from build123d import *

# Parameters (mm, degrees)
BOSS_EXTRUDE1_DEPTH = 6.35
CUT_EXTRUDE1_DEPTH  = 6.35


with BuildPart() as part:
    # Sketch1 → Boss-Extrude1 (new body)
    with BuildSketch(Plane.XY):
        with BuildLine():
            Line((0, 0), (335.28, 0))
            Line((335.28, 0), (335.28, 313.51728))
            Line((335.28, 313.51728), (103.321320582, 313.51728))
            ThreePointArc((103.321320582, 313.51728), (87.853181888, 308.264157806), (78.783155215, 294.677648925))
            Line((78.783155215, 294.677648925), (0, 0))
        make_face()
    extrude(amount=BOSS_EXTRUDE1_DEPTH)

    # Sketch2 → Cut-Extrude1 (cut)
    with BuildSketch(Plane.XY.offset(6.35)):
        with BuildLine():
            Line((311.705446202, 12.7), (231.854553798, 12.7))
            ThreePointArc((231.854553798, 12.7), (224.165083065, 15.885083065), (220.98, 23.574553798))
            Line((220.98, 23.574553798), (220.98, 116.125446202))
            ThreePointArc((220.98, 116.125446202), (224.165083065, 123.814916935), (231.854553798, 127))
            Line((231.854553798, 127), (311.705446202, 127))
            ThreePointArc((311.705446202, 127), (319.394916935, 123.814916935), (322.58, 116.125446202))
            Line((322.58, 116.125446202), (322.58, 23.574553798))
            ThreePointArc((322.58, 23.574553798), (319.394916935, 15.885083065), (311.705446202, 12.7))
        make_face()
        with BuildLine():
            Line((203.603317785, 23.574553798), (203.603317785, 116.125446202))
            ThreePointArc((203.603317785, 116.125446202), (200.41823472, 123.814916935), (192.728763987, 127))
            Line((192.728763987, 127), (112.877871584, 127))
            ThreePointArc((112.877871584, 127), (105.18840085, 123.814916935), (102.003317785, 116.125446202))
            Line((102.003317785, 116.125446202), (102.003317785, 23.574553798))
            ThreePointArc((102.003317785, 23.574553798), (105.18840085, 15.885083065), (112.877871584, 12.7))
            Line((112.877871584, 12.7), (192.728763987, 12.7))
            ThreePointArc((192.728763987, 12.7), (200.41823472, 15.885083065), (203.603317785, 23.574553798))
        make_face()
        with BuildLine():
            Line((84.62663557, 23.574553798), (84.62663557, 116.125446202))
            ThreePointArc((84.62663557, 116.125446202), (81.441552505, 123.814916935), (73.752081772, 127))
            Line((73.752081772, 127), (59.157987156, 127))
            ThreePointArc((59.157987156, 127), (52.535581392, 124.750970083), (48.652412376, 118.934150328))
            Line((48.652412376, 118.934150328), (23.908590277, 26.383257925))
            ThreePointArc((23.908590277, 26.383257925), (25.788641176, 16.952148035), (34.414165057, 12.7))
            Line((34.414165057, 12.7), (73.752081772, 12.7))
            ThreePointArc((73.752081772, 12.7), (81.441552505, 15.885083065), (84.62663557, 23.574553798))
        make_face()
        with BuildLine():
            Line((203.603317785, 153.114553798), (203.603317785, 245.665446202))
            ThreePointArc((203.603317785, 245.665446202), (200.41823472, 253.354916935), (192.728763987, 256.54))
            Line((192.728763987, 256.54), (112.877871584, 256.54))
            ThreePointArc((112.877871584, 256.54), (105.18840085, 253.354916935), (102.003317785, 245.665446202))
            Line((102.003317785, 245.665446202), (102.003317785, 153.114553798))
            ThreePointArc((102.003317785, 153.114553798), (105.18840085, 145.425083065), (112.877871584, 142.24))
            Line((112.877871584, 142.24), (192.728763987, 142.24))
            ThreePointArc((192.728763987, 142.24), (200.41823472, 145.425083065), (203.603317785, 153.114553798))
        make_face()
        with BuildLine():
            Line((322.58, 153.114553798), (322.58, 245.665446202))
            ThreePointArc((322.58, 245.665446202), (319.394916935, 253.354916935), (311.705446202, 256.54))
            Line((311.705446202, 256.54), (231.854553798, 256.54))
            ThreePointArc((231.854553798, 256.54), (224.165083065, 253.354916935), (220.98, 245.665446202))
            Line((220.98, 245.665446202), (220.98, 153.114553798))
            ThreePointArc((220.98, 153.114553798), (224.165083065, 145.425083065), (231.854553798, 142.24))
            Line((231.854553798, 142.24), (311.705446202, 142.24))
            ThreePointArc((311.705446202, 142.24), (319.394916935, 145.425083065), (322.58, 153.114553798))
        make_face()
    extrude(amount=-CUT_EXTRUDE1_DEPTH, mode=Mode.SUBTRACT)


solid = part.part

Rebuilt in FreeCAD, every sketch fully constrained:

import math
import FreeCAD as App
import Part
import Sketcher
Q = App.Units.Quantity

doc = App.newDocument("Part")
body = doc.addObject("PartDesign::Body", "Body")

# Sketch on XY plane
sketch1 = body.newObject("Sketcher::SketchObject", "Sketch")
sketch1.AttachmentSupport = (doc.getObject("XY_Plane"), [""])
sketch1.MapMode = "FlatFace"
sketch1.addGeometry(Part.LineSegment(App.Vector(0, 0, 0), App.Vector(335, 0, 0)), False)
sketch1.addGeometry(Part.LineSegment(App.Vector(335, 0, 0), App.Vector(335, 314, 0)), False)
sketch1.addGeometry(Part.LineSegment(App.Vector(335, 314, 0), App.Vector(103, 314, 0)), False)
sketch1.addGeometry(Part.ArcOfCircle(Part.Circle(App.Vector(103, 288, 0), App.Vector(0, 0, 1), 25), math.radians(90), math.radians(165)), False)
sketch1.addGeometry(Part.LineSegment(App.Vector(79, 295, 0), App.Vector(0, 0, 0)), False)
sketch1.addConstraint(Sketcher.Constraint("Coincident", 0, 2, 1, 1))
sketch1.addConstraint(Sketcher.Constraint("Coincident", 1, 2, 2, 1))
sketch1.addConstraint(Sketcher.Constraint("Tangent", 2, 2, 3, 1))
sketch1.addConstraint(Sketcher.Constraint("Tangent", 3, 2, 4, 1))
sketch1.addConstraint(Sketcher.Constraint("Coincident", 4, 2, 0, 1))
sketch1.addConstraint(Sketcher.Constraint("Horizontal", 0))
sketch1.addConstraint(Sketcher.Constraint("Vertical", 1))
sketch1.addConstraint(Sketcher.Constraint("Horizontal", 2))
sketch1.addConstraint(Sketcher.Constraint("Coincident", 4, 2, -1, 1))
sketch1.addConstraint(Sketcher.Constraint("Radius", 3, Q("1 in")))
sketch1.addConstraint(Sketcher.Constraint("DistanceX", 0, 1, 0, 2, Q("13.2 in")))
sketch1.addConstraint(Sketcher.Constraint("DistanceY", 1, 1, 1, 2, Q("12.3432 in")))
sketch1.addConstraint(Sketcher.Constraint("DistanceX", 2, 2, 2, 1, 231.958679))
pad1 = body.newObject("PartDesign::Pad", "Pad")
pad1.Profile = sketch1
pad1.Length = Q("0.25 in")

# Sketch on XY plane
sketch2 = body.newObject("Sketcher::SketchObject", "Sketch001")
sketch2.AttachmentSupport = (doc.getObject("XY_Plane"), [""])
sketch2.MapMode = "FlatFace"
sketch2.AttachmentOffset = App.Placement(App.Vector(0, 0, 0.25 * 25.4), App.Rotation())
sketch2.addGeometry(Part.LineSegment(App.Vector(232, 13, 0), App.Vector(312, 13, 0)), False)
sketch2.addGeometry(Part.ArcOfCircle(Part.Circle(App.Vector(312, 24, 0), App.Vector(0, 0, 1), 11), math.radians(-90), math.radians(0)), False)
sketch2.addGeometry(Part.LineSegment(App.Vector(323, 24, 0), App.Vector(323, 116, 0)), False)
sketch2.addGeometry(Part.ArcOfCircle(Part.Circle(App.Vector(312, 116, 0), App.Vector(0, 0, 1), 11), math.radians(0), math.radians(90)), False)
sketch2.addGeometry(Part.LineSegment(App.Vector(312, 127, 0), App.Vector(232, 127, 0)), False)
sketch2.addGeometry(Part.ArcOfCircle(Part.Circle(App.Vector(232, 116, 0), App.Vector(0, 0, 1), 11), math.radians(90), math.radians(180)), False)
sketch2.addGeometry(Part.LineSegment(App.Vector(221, 116, 0), App.Vector(221, 24, 0)), False)
sketch2.addGeometry(Part.ArcOfCircle(Part.Circle(App.Vector(232, 24, 0), App.Vector(0, 0, 1), 11), math.radians(180), math.radians(270)), False)
sketch2.addGeometry(Part.LineSegment(App.Vector(204, 24, 0), App.Vector(204, 116, 0)), False)
sketch2.addGeometry(Part.ArcOfCircle(Part.Circle(App.Vector(193, 116, 0), App.Vector(0, 0, 1), 11), math.radians(0), math.radians(90)), False)
sketch2.addGeometry(Part.LineSegment(App.Vector(193, 127, 0), App.Vector(113, 127, 0)), False)
sketch2.addGeometry(Part.ArcOfCircle(Part.Circle(App.Vector(113, 116, 0), App.Vector(0, 0, 1), 11), math.radians(90), math.radians(180)), False)
sketch2.addGeometry(Part.LineSegment(App.Vector(102, 116, 0), App.Vector(102, 24, 0)), False)
sketch2.addGeometry(Part.ArcOfCircle(Part.Circle(App.Vector(113, 24, 0), App.Vector(0, 0, 1), 11), math.radians(180), math.radians(270)), False)
sketch2.addGeometry(Part.LineSegment(App.Vector(113, 13, 0), App.Vector(193, 13, 0)), False)
sketch2.addGeometry(Part.ArcOfCircle(Part.Circle(App.Vector(193, 24, 0), App.Vector(0, 0, 1), 11), math.radians(-90), math.radians(0)), False)
sketch2.addGeometry(Part.LineSegment(App.Vector(85, 24, 0), App.Vector(85, 116, 0)), False)
sketch2.addGeometry(Part.ArcOfCircle(Part.Circle(App.Vector(74, 116, 0), App.Vector(0, 0, 1), 11), math.radians(0), math.radians(90)), False)
sketch2.addGeometry(Part.LineSegment(App.Vector(74, 127, 0), App.Vector(59, 127, 0)), False)
sketch2.addGeometry(Part.ArcOfCircle(Part.Circle(App.Vector(59, 116, 0), App.Vector(0, 0, 1), 11), math.radians(90), math.radians(165)), False)
sketch2.addGeometry(Part.LineSegment(App.Vector(49, 119, 0), App.Vector(24, 26, 0)), False)
sketch2.addGeometry(Part.ArcOfCircle(Part.Circle(App.Vector(34, 24, 0), App.Vector(0, 0, 1), 11), math.radians(165), math.radians(270)), False)
sketch2.addGeometry(Part.LineSegment(App.Vector(34, 13, 0), App.Vector(74, 13, 0)), False)
sketch2.addGeometry(Part.ArcOfCircle(Part.Circle(App.Vector(74, 24, 0), App.Vector(0, 0, 1), 11), math.radians(-90), math.radians(0)), False)
sketch2.addGeometry(Part.LineSegment(App.Vector(204, 153, 0), App.Vector(204, 246, 0)), False)
sketch2.addGeometry(Part.ArcOfCircle(Part.Circle(App.Vector(193, 246, 0), App.Vector(0, 0, 1), 11), math.radians(0), math.radians(90)), False)
sketch2.addGeometry(Part.LineSegment(App.Vector(193, 257, 0), App.Vector(113, 257, 0)), False)
sketch2.addGeometry(Part.ArcOfCircle(Part.Circle(App.Vector(113, 246, 0), App.Vector(0, 0, 1), 11), math.radians(90), math.radians(180)), False)
sketch2.addGeometry(Part.LineSegment(App.Vector(102, 246, 0), App.Vector(102, 153, 0)), False)
sketch2.addGeometry(Part.ArcOfCircle(Part.Circle(App.Vector(113, 153, 0), App.Vector(0, 0, 1), 11), math.radians(180), math.radians(270)), False)
sketch2.addGeometry(Part.LineSegment(App.Vector(113, 142, 0), App.Vector(193, 142, 0)), False)
sketch2.addGeometry(Part.ArcOfCircle(Part.Circle(App.Vector(193, 153, 0), App.Vector(0, 0, 1), 11), math.radians(-90), math.radians(0)), False)
sketch2.addGeometry(Part.LineSegment(App.Vector(323, 153, 0), App.Vector(323, 246, 0)), False)
sketch2.addGeometry(Part.ArcOfCircle(Part.Circle(App.Vector(312, 246, 0), App.Vector(0, 0, 1), 11), math.radians(0), math.radians(90)), False)
sketch2.addGeometry(Part.LineSegment(App.Vector(312, 257, 0), App.Vector(232, 257, 0)), False)
sketch2.addGeometry(Part.ArcOfCircle(Part.Circle(App.Vector(232, 246, 0), App.Vector(0, 0, 1), 11), math.radians(90), math.radians(180)), False)
sketch2.addGeometry(Part.LineSegment(App.Vector(221, 246, 0), App.Vector(221, 153, 0)), False)
sketch2.addGeometry(Part.ArcOfCircle(Part.Circle(App.Vector(232, 153, 0), App.Vector(0, 0, 1), 11), math.radians(180), math.radians(270)), False)
sketch2.addGeometry(Part.LineSegment(App.Vector(232, 142, 0), App.Vector(312, 142, 0)), False)
sketch2.addGeometry(Part.ArcOfCircle(Part.Circle(App.Vector(312, 153, 0), App.Vector(0, 0, 1), 11), math.radians(-90), math.radians(0)), False)
sketch2.addConstraint(Sketcher.Constraint("Tangent", 0, 2, 1, 1))
sketch2.addConstraint(Sketcher.Constraint("Tangent", 1, 2, 2, 1))
sketch2.addConstraint(Sketcher.Constraint("Tangent", 2, 2, 3, 1))
sketch2.addConstraint(Sketcher.Constraint("Tangent", 3, 2, 4, 1))
sketch2.addConstraint(Sketcher.Constraint("Tangent", 4, 2, 5, 1))
sketch2.addConstraint(Sketcher.Constraint("Tangent", 5, 2, 6, 1))
sketch2.addConstraint(Sketcher.Constraint("Tangent", 6, 2, 7, 1))
sketch2.addConstraint(Sketcher.Constraint("Tangent", 7, 2, 0, 1))
sketch2.addConstraint(Sketcher.Constraint("Tangent", 8, 2, 9, 1))
sketch2.addConstraint(Sketcher.Constraint("Tangent", 9, 2, 10, 1))
sketch2.addConstraint(Sketcher.Constraint("Tangent", 10, 2, 11, 1))
sketch2.addConstraint(Sketcher.Constraint("Tangent", 11, 2, 12, 1))
sketch2.addConstraint(Sketcher.Constraint("Tangent", 12, 2, 13, 1))
sketch2.addConstraint(Sketcher.Constraint("Tangent", 13, 2, 14, 1))
sketch2.addConstraint(Sketcher.Constraint("Tangent", 14, 2, 15, 1))
sketch2.addConstraint(Sketcher.Constraint("Tangent", 15, 2, 8, 1))
sketch2.addConstraint(Sketcher.Constraint("Tangent", 16, 2, 17, 1))
sketch2.addConstraint(Sketcher.Constraint("Tangent", 17, 2, 18, 1))
sketch2.addConstraint(Sketcher.Constraint("Tangent", 18, 2, 19, 1))
sketch2.addConstraint(Sketcher.Constraint("Tangent", 19, 2, 20, 1))
sketch2.addConstraint(Sketcher.Constraint("Tangent", 20, 2, 21, 1))
sketch2.addConstraint(Sketcher.Constraint("Tangent", 21, 2, 22, 1))
sketch2.addConstraint(Sketcher.Constraint("Tangent", 22, 2, 23, 1))
sketch2.addConstraint(Sketcher.Constraint("Tangent", 23, 2, 16, 1))
sketch2.addConstraint(Sketcher.Constraint("Tangent", 24, 2, 25, 1))
sketch2.addConstraint(Sketcher.Constraint("Tangent", 25, 2, 26, 1))
sketch2.addConstraint(Sketcher.Constraint("Tangent", 26, 2, 27, 1))
sketch2.addConstraint(Sketcher.Constraint("Tangent", 27, 2, 28, 1))
sketch2.addConstraint(Sketcher.Constraint("Tangent", 28, 2, 29, 1))
sketch2.addConstraint(Sketcher.Constraint("Tangent", 29, 2, 30, 1))
sketch2.addConstraint(Sketcher.Constraint("Tangent", 30, 2, 31, 1))
sketch2.addConstraint(Sketcher.Constraint("Tangent", 31, 2, 24, 1))
sketch2.addConstraint(Sketcher.Constraint("Tangent", 32, 2, 33, 1))
sketch2.addConstraint(Sketcher.Constraint("Tangent", 33, 2, 34, 1))
sketch2.addConstraint(Sketcher.Constraint("Tangent", 34, 2, 35, 1))
sketch2.addConstraint(Sketcher.Constraint("Tangent", 35, 2, 36, 1))
sketch2.addConstraint(Sketcher.Constraint("Tangent", 36, 2, 37, 1))
sketch2.addConstraint(Sketcher.Constraint("Tangent", 37, 2, 38, 1))
sketch2.addConstraint(Sketcher.Constraint("Tangent", 38, 2, 39, 1))
sketch2.addConstraint(Sketcher.Constraint("Tangent", 39, 2, 32, 1))
sketch2.addConstraint(Sketcher.Constraint("Horizontal", 0))
sketch2.addConstraint(Sketcher.Constraint("Vertical", 2))
sketch2.addConstraint(Sketcher.Constraint("Horizontal", 4))
sketch2.addConstraint(Sketcher.Constraint("Vertical", 6))
sketch2.addConstraint(Sketcher.Constraint("Vertical", 8))
sketch2.addConstraint(Sketcher.Constraint("Horizontal", 10))
sketch2.addConstraint(Sketcher.Constraint("Vertical", 12))
sketch2.addConstraint(Sketcher.Constraint("Horizontal", 14))
sketch2.addConstraint(Sketcher.Constraint("Vertical", 16))
sketch2.addConstraint(Sketcher.Constraint("Horizontal", 18))
sketch2.addConstraint(Sketcher.Constraint("Horizontal", 22))
sketch2.addConstraint(Sketcher.Constraint("Vertical", 24))
sketch2.addConstraint(Sketcher.Constraint("Horizontal", 26))
sketch2.addConstraint(Sketcher.Constraint("Vertical", 28))
sketch2.addConstraint(Sketcher.Constraint("Horizontal", 30))
sketch2.addConstraint(Sketcher.Constraint("Vertical", 32))
sketch2.addConstraint(Sketcher.Constraint("Horizontal", 34))
sketch2.addConstraint(Sketcher.Constraint("Vertical", 36))
sketch2.addConstraint(Sketcher.Constraint("Horizontal", 38))
sketch2.addConstraint(Sketcher.Constraint("Equal", 1, 3))
sketch2.addConstraint(Sketcher.Constraint("Equal", 3, 5))
sketch2.addConstraint(Sketcher.Constraint("Equal", 5, 7))
sketch2.addConstraint(Sketcher.Constraint("Equal", 7, 9))
sketch2.addConstraint(Sketcher.Constraint("Equal", 9, 11))
sketch2.addConstraint(Sketcher.Constraint("Equal", 11, 13))
sketch2.addConstraint(Sketcher.Constraint("Equal", 13, 15))
sketch2.addConstraint(Sketcher.Constraint("Equal", 15, 17))
sketch2.addConstraint(Sketcher.Constraint("Equal", 17, 19))
sketch2.addConstraint(Sketcher.Constraint("Equal", 19, 21))
sketch2.addConstraint(Sketcher.Constraint("Equal", 21, 23))
sketch2.addConstraint(Sketcher.Constraint("Equal", 23, 25))
sketch2.addConstraint(Sketcher.Constraint("Equal", 25, 27))
sketch2.addConstraint(Sketcher.Constraint("Equal", 27, 29))
sketch2.addConstraint(Sketcher.Constraint("Equal", 29, 31))
sketch2.addConstraint(Sketcher.Constraint("Equal", 31, 33))
sketch2.addConstraint(Sketcher.Constraint("Equal", 33, 35))
sketch2.addConstraint(Sketcher.Constraint("Equal", 35, 37))
sketch2.addConstraint(Sketcher.Constraint("Equal", 37, 39))
sketch2.addConstraint(Sketcher.Constraint("Horizontal", 5, 3, 9, 3))
sketch2.addConstraint(Sketcher.Constraint("Horizontal", 7, 3, 13, 3))
sketch2.addConstraint(Sketcher.Constraint("Horizontal", 11, 3, 17, 3))
sketch2.addConstraint(Sketcher.Constraint("Horizontal", 15, 3, 21, 3))
sketch2.addConstraint(Sketcher.Constraint("Horizontal", 27, 3, 33, 3))
sketch2.addConstraint(Sketcher.Constraint("Horizontal", 31, 3, 37, 3))
sketch2.addConstraint(Sketcher.Constraint("Vertical", 15, 3, 25, 3))
sketch2.addConstraint(Sketcher.Constraint("Vertical", 13, 3, 27, 3))
sketch2.addConstraint(Sketcher.Constraint("Vertical", 3, 3, 33, 3))
sketch2.addConstraint(Sketcher.Constraint("Vertical", 7, 3, 35, 3))
sketch2.addConstraint(Sketcher.Constraint("Equal", 4, 10))
sketch2.addConstraint(Sketcher.Constraint("Equal", 16, 24))
sketch2.addConstraint(Sketcher.Constraint("DistanceY", -1, 1, 3, 2, Q("5 in")))
sketch2.addConstraint(Sketcher.Constraint("DistanceY", -1, 1, 0, 2, Q("0.5 in")))
sketch2.addConstraint(Sketcher.Constraint("DistanceX", -1, 1, 1, 2, Q("12.7 in")))
sketch2.addConstraint(Sketcher.Constraint("DistanceX", -1, 1, 5, 2, Q("8.7 in")))
sketch2.addConstraint(Sketcher.Constraint("DistanceY", -1, 1, 25, 2, Q("10.1 in")))
sketch2.addConstraint(Sketcher.Constraint("Radius", 1, 10.874554))
sketch2.addConstraint(Sketcher.Constraint("DistanceX", 21, 3, 15, 3, 158.314599))
sketch2.addConstraint(Sketcher.Constraint("DistanceX", 18, 2, 18, 1, 14.594095))
sketch2.addConstraint(Sketcher.Constraint("DistanceX", 22, 1, 22, 2, 39.337917))
sketch2.addConstraint(Sketcher.Constraint("DistanceX", -1, 1, 11, 3, 112.877872))
pocket1 = body.newObject("PartDesign::Pocket", "Pocket")
pocket1.Profile = sketch2
pocket1.Length = Q("0.25 in")

doc.recompute()
